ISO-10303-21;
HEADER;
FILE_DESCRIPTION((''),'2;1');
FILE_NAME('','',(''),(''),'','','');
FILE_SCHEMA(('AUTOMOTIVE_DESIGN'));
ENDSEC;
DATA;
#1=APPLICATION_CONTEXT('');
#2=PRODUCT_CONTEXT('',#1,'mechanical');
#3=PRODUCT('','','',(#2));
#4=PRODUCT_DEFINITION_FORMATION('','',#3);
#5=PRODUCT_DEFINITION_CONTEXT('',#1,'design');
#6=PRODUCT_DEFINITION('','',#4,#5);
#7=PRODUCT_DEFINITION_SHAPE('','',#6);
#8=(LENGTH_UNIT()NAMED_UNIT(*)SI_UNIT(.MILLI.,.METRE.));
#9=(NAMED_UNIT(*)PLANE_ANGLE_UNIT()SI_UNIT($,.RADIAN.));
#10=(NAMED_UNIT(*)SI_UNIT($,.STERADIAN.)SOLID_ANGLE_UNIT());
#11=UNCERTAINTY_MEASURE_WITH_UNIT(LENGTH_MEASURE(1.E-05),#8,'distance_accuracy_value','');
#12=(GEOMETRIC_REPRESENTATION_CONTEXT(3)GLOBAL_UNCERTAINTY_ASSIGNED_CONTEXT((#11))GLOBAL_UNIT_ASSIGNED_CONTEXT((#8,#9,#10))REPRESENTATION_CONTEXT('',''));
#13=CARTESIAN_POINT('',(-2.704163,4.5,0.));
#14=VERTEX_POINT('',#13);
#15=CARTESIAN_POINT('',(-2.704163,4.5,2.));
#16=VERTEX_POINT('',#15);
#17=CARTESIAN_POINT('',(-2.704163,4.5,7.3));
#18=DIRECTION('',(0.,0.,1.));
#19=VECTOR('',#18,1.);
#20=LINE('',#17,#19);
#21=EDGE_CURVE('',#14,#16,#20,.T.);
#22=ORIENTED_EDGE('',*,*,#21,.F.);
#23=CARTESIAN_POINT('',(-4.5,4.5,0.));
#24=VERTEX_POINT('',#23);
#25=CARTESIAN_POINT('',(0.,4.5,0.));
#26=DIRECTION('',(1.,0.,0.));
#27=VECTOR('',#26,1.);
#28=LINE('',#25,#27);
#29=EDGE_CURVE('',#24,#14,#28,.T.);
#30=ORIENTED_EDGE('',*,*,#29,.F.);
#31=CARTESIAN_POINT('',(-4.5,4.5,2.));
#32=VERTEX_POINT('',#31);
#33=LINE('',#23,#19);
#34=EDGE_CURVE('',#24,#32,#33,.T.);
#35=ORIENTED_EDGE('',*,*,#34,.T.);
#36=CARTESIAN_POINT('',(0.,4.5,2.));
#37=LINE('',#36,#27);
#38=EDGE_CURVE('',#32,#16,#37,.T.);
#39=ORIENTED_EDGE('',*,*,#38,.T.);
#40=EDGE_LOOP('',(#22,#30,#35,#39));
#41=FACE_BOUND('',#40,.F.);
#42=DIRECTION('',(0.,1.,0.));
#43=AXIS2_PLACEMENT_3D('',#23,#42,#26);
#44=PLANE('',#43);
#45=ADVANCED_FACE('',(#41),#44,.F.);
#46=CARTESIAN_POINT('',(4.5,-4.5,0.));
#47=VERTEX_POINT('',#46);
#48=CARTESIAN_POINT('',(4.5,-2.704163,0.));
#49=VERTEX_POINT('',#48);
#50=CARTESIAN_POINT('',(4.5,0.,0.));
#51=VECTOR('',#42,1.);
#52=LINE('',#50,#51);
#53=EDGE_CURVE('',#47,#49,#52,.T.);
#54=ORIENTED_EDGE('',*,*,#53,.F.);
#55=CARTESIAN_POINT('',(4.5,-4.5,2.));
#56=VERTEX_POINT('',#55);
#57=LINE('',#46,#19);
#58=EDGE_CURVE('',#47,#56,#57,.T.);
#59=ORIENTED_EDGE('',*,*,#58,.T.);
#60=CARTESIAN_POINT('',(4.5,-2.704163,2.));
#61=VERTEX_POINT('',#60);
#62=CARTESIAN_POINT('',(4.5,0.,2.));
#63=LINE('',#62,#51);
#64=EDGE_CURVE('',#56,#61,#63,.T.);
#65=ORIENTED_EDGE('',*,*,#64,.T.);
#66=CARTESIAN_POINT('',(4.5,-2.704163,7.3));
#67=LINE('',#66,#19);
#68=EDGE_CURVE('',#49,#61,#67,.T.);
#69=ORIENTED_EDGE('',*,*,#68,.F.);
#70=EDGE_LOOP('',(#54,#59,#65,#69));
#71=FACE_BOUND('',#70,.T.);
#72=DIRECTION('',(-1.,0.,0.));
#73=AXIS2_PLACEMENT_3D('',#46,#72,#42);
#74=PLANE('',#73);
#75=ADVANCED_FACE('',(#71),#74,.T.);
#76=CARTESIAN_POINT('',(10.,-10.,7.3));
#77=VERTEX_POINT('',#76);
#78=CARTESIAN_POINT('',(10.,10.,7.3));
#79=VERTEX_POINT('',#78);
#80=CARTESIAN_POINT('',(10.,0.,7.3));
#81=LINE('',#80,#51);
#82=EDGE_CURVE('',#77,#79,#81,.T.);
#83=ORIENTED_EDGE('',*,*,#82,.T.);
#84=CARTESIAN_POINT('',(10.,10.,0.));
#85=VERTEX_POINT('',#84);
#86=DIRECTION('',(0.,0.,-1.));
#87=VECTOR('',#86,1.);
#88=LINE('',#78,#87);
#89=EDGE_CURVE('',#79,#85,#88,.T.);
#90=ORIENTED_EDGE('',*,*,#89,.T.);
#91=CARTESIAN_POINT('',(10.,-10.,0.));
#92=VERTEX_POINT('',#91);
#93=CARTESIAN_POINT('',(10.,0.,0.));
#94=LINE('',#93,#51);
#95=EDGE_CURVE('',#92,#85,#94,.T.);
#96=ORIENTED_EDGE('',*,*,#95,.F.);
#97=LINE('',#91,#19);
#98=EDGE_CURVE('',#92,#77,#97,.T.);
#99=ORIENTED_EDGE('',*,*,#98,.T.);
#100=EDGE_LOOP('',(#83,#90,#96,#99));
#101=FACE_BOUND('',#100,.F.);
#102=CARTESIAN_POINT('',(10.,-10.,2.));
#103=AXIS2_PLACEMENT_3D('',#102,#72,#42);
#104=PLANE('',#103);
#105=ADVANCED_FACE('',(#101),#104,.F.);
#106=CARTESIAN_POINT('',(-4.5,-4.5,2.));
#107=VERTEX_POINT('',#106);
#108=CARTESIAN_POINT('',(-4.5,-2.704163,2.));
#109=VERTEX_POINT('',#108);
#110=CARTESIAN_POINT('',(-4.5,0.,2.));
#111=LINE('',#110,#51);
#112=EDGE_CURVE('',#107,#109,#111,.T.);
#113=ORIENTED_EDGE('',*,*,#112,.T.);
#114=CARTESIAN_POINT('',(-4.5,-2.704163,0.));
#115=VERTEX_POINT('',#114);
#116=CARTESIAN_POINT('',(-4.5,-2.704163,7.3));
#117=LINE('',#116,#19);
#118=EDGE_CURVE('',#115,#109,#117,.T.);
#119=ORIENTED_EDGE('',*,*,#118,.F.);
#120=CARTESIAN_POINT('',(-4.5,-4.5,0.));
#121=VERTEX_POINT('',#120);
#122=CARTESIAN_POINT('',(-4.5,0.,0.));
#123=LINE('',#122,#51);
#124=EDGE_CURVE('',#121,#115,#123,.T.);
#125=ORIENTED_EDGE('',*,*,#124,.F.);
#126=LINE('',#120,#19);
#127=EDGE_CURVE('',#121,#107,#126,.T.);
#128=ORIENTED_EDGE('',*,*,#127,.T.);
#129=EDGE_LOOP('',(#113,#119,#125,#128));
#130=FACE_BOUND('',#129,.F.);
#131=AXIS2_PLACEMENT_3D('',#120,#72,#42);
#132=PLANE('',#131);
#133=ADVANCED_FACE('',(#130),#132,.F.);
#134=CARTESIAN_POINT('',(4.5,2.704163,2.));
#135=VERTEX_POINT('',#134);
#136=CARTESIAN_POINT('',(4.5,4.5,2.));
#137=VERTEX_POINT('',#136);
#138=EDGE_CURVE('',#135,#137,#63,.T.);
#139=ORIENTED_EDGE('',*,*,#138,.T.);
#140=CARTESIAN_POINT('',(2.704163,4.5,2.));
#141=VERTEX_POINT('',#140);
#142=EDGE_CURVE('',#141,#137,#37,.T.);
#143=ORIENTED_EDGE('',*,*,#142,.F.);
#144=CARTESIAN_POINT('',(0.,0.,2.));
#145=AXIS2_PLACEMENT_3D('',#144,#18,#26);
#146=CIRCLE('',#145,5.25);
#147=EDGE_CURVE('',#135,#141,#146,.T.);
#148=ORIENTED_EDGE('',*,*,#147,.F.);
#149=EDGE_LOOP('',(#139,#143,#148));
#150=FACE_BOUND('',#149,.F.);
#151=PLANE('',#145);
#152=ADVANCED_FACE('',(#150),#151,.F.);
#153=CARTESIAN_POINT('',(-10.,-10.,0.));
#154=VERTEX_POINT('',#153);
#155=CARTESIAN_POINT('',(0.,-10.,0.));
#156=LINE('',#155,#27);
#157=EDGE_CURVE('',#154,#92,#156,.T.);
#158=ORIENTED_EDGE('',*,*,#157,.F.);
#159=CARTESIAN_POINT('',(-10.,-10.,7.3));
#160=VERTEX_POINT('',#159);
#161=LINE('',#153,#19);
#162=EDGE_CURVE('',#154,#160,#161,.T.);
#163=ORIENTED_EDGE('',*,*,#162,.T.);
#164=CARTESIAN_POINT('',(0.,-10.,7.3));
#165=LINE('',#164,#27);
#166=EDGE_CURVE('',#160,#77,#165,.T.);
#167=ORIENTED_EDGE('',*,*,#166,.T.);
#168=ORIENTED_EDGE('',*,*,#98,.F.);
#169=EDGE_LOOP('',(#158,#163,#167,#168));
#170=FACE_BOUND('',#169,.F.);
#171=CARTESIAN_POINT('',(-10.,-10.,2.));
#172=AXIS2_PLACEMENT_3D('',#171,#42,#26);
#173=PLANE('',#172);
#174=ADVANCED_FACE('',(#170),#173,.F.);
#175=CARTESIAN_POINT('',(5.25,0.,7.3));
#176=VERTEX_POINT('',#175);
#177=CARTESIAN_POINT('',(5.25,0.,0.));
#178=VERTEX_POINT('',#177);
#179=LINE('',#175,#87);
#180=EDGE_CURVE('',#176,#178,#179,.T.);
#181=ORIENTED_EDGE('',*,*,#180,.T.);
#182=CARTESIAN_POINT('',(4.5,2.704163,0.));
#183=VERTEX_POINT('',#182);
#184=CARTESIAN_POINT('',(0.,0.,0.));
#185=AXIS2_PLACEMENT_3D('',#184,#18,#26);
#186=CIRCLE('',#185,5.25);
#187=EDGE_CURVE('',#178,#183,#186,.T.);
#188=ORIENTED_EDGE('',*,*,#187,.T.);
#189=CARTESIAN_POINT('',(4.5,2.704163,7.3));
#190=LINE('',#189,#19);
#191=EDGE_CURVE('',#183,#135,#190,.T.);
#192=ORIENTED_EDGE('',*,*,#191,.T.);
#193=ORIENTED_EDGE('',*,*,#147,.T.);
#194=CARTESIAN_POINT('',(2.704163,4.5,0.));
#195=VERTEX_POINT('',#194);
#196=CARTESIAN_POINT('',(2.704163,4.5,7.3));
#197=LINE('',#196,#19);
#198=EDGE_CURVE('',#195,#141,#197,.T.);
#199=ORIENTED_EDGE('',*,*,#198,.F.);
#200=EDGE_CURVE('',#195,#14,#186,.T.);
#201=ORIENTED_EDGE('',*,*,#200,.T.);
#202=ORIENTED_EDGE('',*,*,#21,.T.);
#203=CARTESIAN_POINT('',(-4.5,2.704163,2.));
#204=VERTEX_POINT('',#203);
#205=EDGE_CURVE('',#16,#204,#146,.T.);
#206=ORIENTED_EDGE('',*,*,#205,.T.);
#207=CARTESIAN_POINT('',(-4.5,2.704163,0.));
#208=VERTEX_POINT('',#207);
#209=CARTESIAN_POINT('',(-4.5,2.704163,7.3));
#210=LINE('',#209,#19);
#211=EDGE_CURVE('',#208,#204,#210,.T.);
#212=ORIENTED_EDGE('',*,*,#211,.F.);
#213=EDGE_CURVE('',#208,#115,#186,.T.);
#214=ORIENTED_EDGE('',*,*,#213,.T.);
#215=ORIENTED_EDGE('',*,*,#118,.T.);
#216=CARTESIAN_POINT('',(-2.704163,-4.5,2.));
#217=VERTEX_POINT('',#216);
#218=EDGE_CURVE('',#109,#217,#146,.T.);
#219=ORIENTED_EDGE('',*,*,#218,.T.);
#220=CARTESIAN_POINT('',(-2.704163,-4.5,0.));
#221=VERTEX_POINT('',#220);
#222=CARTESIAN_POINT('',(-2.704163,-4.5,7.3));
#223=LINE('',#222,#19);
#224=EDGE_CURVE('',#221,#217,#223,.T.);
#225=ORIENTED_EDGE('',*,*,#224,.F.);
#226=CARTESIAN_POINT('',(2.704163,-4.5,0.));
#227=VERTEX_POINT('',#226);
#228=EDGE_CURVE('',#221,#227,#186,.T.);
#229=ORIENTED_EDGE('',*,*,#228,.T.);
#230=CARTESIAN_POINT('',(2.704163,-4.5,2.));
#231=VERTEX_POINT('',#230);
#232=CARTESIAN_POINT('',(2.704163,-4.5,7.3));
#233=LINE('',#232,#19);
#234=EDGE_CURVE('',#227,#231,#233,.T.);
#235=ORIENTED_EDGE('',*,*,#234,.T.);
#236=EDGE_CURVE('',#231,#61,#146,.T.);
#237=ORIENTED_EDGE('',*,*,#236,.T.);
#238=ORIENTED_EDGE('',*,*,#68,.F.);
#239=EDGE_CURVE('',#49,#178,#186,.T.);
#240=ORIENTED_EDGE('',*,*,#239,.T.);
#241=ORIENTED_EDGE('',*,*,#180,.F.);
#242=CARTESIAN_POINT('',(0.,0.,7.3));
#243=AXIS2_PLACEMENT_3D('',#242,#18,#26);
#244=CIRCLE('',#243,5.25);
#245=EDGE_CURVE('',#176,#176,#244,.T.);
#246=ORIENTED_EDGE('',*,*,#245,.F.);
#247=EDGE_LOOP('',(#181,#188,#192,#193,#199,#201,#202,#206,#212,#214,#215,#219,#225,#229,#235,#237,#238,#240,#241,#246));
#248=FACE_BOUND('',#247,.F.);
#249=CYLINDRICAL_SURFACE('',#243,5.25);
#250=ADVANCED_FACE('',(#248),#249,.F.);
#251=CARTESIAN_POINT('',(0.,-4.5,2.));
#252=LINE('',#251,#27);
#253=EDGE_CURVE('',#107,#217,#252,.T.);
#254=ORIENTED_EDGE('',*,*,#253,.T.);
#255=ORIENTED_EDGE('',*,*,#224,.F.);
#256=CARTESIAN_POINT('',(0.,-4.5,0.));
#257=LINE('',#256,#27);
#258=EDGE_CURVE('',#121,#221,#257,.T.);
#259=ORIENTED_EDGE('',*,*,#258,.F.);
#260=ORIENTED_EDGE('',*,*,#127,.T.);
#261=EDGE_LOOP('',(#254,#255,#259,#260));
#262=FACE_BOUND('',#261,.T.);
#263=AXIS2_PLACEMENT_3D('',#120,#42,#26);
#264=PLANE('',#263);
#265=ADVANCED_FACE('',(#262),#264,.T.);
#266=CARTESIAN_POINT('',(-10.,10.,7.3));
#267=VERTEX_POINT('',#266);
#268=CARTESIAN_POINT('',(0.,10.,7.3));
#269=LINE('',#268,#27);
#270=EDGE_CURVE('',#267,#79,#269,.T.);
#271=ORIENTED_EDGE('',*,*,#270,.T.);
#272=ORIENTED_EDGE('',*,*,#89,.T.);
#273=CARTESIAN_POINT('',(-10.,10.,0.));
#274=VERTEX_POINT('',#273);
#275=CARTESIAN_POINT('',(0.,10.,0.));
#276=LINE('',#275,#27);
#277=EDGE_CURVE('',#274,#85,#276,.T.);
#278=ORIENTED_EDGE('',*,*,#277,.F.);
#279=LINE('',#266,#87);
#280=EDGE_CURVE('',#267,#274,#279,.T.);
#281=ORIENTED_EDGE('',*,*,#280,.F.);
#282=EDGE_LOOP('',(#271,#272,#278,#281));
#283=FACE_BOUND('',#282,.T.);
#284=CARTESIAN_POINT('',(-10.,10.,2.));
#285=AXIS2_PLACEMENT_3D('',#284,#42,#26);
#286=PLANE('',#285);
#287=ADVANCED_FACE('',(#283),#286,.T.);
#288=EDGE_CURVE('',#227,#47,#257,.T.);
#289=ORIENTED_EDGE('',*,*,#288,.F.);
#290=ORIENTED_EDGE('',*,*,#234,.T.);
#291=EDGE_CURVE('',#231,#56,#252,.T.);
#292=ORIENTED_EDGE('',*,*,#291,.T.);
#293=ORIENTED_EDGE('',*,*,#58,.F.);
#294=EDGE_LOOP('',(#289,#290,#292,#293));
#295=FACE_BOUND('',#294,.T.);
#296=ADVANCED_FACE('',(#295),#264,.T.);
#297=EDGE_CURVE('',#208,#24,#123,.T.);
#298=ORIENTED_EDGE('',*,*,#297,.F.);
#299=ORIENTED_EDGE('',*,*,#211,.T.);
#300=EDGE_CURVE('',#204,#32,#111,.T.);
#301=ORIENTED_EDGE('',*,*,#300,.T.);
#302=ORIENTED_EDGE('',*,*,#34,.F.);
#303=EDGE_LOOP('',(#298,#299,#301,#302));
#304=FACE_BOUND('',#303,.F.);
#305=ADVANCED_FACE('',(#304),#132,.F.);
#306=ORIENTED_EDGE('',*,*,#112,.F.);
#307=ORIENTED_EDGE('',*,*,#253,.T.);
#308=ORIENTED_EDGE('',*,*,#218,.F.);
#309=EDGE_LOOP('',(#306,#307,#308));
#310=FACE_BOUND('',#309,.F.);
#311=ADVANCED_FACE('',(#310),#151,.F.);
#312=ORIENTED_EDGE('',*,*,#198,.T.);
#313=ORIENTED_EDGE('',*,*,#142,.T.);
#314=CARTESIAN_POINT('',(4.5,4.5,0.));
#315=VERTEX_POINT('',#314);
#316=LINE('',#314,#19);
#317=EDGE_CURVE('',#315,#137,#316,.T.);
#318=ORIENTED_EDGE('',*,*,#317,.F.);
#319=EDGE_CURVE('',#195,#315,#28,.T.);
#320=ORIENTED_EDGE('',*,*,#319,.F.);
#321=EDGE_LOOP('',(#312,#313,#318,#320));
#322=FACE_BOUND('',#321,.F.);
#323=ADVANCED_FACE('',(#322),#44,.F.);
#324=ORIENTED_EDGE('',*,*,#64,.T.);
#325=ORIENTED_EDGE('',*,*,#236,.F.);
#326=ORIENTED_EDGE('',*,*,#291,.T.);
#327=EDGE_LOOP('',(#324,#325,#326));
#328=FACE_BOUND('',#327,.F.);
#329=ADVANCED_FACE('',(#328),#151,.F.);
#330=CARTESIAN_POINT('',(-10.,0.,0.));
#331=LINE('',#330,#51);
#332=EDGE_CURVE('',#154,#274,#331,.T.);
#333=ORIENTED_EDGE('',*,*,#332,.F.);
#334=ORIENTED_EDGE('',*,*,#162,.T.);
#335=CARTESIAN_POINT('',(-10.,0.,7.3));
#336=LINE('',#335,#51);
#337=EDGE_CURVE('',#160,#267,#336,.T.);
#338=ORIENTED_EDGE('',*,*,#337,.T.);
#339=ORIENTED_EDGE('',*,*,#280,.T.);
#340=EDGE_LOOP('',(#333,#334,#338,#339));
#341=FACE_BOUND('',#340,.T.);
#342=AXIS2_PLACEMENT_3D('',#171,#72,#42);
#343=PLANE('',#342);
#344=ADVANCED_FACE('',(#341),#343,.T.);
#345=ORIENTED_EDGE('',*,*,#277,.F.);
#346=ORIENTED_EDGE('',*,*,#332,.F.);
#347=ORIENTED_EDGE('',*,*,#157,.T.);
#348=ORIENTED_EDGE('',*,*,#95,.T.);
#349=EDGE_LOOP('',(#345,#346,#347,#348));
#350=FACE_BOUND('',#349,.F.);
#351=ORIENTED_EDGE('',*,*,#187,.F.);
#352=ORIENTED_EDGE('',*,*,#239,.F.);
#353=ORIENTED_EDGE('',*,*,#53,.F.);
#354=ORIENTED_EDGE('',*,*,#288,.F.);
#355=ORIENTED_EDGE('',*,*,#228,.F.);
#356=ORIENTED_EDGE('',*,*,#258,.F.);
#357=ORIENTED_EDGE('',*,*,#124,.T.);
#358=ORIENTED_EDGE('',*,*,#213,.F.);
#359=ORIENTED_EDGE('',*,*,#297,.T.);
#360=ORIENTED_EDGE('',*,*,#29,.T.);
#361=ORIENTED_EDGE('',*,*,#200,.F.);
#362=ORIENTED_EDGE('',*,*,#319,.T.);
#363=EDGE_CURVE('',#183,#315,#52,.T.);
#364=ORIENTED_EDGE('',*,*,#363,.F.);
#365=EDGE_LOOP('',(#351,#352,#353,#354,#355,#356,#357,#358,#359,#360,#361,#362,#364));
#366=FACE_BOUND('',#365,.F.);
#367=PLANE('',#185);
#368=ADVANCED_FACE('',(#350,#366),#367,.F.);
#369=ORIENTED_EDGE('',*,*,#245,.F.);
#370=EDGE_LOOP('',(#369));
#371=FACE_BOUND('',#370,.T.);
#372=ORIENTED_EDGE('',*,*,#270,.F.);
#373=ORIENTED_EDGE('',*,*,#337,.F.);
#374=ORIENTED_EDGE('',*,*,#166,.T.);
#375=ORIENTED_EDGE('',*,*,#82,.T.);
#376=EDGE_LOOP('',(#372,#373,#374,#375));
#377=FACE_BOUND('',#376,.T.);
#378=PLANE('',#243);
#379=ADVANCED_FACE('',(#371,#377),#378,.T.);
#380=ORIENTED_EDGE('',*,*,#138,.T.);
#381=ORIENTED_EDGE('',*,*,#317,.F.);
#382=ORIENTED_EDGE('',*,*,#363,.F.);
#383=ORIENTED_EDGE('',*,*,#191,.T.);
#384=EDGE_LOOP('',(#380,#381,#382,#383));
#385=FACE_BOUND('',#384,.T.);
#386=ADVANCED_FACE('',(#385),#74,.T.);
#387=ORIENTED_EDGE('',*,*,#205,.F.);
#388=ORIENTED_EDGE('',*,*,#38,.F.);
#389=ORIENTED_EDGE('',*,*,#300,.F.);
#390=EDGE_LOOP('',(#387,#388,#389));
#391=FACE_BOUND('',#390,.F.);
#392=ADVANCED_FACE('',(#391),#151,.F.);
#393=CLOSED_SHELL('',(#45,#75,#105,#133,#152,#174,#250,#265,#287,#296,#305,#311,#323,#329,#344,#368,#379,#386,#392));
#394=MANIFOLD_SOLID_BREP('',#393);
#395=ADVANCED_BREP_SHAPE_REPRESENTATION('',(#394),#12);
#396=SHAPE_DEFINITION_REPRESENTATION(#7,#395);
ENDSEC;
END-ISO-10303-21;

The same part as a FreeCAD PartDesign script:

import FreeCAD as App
import Part
import Sketcher

V = App.Vector
Q = App.Units.Quantity

doc = App.newDocument("Part")
body = doc.addObject("PartDesign::Body", "Body")

# Sketch on XY plane
sketch1 = body.newObject("Sketcher::SketchObject", "Sketch")
sketch1.AttachmentSupport = (doc.getObject("XY_Plane"), [""])
sketch1.MapMode = "FlatFace"
sketch1.addGeometry([
    Part.LineSegment(V(-10, 10, 0), V(-10, -10, 0)),  # 0
    Part.LineSegment(V(-10, -10, 0), V(10, -10, 0)),  # 1
    Part.LineSegment(V(10, -10, 0), V(10, 10, 0)),  # 2
    Part.LineSegment(V(10, 10, 0), V(-10, 10, 0)),  # 3
    Part.LineSegment(V(4, -4, 0), V(-4, -4, 0)),  # 4
    Part.LineSegment(V(-4, -4, 0), V(-4, 4, 0)),  # 5
    Part.LineSegment(V(-4, 4, 0), V(4, 4, 0)),  # 6
    Part.LineSegment(V(4, 4, 0), V(4, -4, 0)),  # 7
], False)
sketch1.addConstraint([
    Sketcher.Constraint("Coincident", 0, 2, 1, 1),
    Sketcher.Constraint("Coincident", 1, 2, 2, 1),
    Sketcher.Constraint("Coincident", 2, 2, 3, 1),
    Sketcher.Constraint("Coincident", 3, 2, 0, 1),
    Sketcher.Constraint("Coincident", 4, 2, 5, 1),
    Sketcher.Constraint("Coincident", 5, 2, 6, 1),
    Sketcher.Constraint("Coincident", 6, 2, 7, 1),
    Sketcher.Constraint("Coincident", 7, 2, 4, 1),
    Sketcher.Constraint("Vertical", 0),
    Sketcher.Constraint("Horizontal", 1),
    Sketcher.Constraint("Vertical", 2),
    Sketcher.Constraint("Horizontal", 3),
    Sketcher.Constraint("Horizontal", 4),
    Sketcher.Constraint("Vertical", 5),
    Sketcher.Constraint("Horizontal", 6),
    Sketcher.Constraint("Vertical", 7),
    Sketcher.Constraint("Symmetric", 0, 2, 2, 2, -1, 1),
    Sketcher.Constraint("Symmetric", 4, 2, 6, 2, -1, 1),
    Sketcher.Constraint("Equal", 3, 0),
    Sketcher.Constraint("Equal", 6, 5),
    Sketcher.Constraint("DistanceX", 1, 1, 1, 2, Q("20 mm")),
    Sketcher.Constraint("DistanceX", 4, 2, 4, 1, Q("9 mm")),
])
pad1 = body.newObject("PartDesign::Pad", "Pad")
pad1.Profile = sketch1
pad1.Length = 2

# Sketch on XY plane
sketch2 = body.newObject("Sketcher::SketchObject", "Sketch001")
sketch2.AttachmentSupport = (doc.getObject("XY_Plane"), [""])
sketch2.MapMode = "FlatFace"
sketch2.AttachmentOffset = App.Placement(V(0, 0, 2), App.Rotation())
sketch2.addGeometry([
    Part.LineSegment(V(-10, 10, 0), V(-10, -10, 0)),
    Part.LineSegment(V(-10, -10, 0), V(10, -10, 0)),
    Part.LineSegment(V(10, -10, 0), V(10, 10, 0)),
    Part.LineSegment(V(10, 10, 0), V(-10, 10, 0)),
], False)
sketch2.addConstraint([
    Sketcher.Constraint("Coincident", 0, 2, 1, 1),
    Sketcher.Constraint("Coincident", 1, 2, 2, 1),
    Sketcher.Constraint("Coincident", 2, 2, 3, 1),
    Sketcher.Constraint("Coincident", 3, 2, 0, 1),
    Sketcher.Constraint("Vertical", 0),
    Sketcher.Constraint("Horizontal", 1),
    Sketcher.Constraint("Vertical", 2),
    Sketcher.Constraint("Horizontal", 3),
    Sketcher.Constraint("Symmetric", 0, 2, 2, 2, -1, 1),
    Sketcher.Constraint("Equal", 3, 0),
    Sketcher.Constraint("DistanceX", 1, 1, 1, 2, Q("20 mm")),
])
pad2 = body.newObject("PartDesign::Pad", "Pad001")
pad2.Profile = sketch2
pad2.Length = 5.3

# Sketch on XY plane
sketch3 = body.newObject("Sketcher::SketchObject", "Sketch002")
sketch3.AttachmentSupport = (doc.getObject("XY_Plane"), [""])
sketch3.MapMode = "FlatFace"
sketch3.AttachmentOffset = App.Placement(V(0, 0, 7.3), App.Rotation())
sketch3.addGeometry(Part.Circle(V(0, 0, 0), V(0, 0, 1), 5), False)
sketch3.addConstraint([
    Sketcher.Constraint("Coincident", 0, 3, -1, 1),
    Sketcher.Constraint("Diameter", 0, Q("10.5 mm")),
])
pocket1 = body.newObject("PartDesign::Pocket", "Pocket")
pocket1.Profile = sketch3
pocket1.Length = 10

doc.recompute()
